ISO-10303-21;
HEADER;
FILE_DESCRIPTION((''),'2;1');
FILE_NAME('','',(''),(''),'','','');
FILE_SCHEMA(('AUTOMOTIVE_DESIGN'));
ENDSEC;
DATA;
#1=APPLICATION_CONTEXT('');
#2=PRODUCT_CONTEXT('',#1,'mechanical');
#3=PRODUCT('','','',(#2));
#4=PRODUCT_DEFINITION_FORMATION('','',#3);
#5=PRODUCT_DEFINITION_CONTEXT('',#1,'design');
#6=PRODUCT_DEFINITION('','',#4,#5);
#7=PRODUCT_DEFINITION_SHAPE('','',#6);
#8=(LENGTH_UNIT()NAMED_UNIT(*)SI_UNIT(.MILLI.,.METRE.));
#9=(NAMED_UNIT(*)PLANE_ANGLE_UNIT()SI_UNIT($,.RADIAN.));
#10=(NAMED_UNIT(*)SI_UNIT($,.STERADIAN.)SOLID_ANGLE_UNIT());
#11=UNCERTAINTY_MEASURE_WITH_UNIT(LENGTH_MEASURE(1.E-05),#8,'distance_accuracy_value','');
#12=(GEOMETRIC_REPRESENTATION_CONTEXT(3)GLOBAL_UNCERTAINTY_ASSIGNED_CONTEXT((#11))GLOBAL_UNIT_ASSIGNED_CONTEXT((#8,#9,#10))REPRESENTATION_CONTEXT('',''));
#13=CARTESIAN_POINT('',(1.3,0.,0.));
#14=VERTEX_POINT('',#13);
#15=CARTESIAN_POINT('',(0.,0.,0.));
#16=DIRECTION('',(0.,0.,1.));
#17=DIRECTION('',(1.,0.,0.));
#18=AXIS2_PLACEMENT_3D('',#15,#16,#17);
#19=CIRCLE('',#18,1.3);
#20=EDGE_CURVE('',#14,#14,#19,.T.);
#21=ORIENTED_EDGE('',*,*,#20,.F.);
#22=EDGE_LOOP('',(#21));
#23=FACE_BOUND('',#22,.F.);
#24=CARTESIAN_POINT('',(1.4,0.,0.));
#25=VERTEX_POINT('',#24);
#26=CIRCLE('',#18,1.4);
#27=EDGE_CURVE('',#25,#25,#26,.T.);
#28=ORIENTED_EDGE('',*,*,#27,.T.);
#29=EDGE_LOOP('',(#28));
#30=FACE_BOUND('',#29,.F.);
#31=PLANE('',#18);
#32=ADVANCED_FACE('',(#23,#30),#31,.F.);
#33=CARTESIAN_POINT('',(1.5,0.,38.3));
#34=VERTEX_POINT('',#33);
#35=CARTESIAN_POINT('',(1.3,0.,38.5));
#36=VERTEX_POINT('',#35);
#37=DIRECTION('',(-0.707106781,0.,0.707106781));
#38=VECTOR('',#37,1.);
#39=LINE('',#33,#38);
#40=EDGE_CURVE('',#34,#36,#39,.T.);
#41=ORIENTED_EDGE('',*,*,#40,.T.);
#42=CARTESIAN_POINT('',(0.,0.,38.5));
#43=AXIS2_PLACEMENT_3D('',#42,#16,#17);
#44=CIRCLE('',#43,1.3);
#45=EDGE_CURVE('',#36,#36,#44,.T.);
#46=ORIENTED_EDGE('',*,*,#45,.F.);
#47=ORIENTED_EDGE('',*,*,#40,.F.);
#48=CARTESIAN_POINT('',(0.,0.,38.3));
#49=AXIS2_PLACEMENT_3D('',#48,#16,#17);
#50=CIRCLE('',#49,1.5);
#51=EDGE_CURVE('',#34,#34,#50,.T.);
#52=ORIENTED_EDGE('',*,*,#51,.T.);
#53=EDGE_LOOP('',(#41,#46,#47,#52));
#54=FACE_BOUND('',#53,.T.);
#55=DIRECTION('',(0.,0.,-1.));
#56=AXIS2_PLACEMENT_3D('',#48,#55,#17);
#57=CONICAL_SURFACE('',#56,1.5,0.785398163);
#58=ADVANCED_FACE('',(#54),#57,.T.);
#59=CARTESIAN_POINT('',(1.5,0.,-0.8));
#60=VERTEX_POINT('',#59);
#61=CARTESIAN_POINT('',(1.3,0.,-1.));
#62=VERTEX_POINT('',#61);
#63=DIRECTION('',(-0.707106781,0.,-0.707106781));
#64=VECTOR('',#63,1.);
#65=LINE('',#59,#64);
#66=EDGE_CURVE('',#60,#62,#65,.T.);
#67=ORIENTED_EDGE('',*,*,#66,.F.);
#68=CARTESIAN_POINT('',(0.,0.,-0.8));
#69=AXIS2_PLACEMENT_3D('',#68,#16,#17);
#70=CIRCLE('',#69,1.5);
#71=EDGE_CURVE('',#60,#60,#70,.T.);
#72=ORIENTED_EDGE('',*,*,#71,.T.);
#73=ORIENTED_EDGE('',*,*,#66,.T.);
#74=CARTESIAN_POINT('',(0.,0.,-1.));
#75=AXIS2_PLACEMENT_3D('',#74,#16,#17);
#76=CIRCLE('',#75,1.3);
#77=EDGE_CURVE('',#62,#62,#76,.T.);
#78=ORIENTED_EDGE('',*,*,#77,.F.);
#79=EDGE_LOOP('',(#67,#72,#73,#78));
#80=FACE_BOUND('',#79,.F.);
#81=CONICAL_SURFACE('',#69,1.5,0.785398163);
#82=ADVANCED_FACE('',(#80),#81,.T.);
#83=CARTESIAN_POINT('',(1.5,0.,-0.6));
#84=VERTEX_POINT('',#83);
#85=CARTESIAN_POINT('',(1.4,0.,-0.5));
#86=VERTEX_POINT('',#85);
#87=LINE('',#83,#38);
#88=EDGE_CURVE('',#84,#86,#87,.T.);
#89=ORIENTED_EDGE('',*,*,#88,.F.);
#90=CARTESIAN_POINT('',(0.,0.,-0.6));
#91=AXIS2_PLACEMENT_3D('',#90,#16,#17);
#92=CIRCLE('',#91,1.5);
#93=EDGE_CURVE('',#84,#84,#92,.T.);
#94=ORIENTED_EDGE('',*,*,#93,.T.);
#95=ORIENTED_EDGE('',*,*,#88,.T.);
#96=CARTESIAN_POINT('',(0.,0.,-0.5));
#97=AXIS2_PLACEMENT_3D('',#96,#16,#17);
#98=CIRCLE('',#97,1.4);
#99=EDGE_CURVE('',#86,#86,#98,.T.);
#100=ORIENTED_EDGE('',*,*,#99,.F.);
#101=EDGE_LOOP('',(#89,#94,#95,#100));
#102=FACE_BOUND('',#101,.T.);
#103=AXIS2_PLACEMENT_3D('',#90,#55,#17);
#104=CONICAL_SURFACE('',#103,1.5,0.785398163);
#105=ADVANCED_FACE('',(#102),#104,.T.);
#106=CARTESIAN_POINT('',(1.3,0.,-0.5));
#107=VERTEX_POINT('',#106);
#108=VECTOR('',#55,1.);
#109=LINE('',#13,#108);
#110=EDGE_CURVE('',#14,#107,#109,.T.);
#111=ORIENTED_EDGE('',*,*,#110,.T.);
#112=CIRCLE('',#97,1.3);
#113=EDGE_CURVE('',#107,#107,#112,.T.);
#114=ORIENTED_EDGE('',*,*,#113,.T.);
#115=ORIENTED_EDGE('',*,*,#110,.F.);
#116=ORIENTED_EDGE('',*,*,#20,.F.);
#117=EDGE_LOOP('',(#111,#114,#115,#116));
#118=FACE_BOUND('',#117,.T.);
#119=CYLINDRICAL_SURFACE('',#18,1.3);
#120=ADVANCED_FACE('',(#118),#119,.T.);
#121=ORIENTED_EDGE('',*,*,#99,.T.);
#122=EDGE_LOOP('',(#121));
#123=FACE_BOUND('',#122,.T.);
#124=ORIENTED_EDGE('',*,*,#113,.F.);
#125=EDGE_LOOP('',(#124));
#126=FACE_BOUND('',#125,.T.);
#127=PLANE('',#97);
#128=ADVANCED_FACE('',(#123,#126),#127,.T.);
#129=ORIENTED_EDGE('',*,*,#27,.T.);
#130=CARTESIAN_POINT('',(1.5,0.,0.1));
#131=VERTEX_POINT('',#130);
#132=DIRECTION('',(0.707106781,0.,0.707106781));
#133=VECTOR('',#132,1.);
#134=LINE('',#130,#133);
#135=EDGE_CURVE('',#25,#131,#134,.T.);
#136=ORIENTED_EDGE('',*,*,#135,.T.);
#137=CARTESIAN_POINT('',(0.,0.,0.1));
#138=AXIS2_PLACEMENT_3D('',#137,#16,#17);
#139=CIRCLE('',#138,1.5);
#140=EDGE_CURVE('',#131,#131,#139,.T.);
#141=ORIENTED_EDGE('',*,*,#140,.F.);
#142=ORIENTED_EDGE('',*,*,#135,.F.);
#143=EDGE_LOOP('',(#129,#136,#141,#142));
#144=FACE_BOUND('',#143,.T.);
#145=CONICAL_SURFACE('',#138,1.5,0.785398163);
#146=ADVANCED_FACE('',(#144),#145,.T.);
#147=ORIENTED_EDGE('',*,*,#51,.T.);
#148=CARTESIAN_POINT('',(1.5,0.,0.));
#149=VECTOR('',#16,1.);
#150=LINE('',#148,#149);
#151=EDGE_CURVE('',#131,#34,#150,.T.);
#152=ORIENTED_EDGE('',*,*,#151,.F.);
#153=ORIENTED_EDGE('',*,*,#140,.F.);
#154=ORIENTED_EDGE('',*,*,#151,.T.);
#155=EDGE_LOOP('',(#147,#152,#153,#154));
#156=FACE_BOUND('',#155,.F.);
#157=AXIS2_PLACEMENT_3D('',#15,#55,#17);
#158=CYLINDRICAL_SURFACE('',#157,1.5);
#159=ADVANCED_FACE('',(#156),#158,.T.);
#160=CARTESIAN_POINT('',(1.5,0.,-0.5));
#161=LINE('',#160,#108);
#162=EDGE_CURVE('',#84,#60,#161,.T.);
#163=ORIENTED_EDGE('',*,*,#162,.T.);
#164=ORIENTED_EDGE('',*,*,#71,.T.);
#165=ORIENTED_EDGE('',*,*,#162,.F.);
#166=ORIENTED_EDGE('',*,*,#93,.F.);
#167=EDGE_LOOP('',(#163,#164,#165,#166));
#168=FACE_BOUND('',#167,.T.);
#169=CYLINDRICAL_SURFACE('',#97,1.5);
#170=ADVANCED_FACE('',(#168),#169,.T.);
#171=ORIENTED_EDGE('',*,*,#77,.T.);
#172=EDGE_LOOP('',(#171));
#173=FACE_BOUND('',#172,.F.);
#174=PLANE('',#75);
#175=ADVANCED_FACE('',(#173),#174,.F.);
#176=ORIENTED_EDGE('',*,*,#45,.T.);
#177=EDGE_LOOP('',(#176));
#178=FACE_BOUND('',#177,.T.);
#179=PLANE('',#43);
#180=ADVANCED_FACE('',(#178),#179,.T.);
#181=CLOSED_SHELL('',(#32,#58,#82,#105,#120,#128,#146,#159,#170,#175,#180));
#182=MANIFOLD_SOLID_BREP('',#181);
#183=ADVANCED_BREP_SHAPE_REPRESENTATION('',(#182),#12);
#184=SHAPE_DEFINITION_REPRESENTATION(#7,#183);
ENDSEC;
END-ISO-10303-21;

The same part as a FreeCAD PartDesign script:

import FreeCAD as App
import Part
import Sketcher
from FreeCAD import Vector


def edges_at(feature, points):
    """Names of the edges that pass closest to the given points."""
    edges = feature.Shape.Edges
    near = lambda p: min(range(len(edges)), key=lambda i: edges[i].distToShape(Part.Vertex(*p))[0])
    return sorted({f"Edge{near(p) + 1}" for p in points})

doc = App.newDocument("Part")
body = doc.addObject("PartDesign::Body", "Body")

sketch1 = body.newObject("Sketcher::SketchObject", "Sketch")
sketch1.AttachmentSupport = (doc.getObject("XY_Plane"), [""])
sketch1.MapMode = "FlatFace"
sketch1.addGeometry(Part.Circle(Vector(0, 0, 0), Vector(0, 0, 1), 1.5), False)
sketch1.addConstraint([
    Sketcher.Constraint("Coincident", 0, 3, -1, 1),
    Sketcher.Constraint("Diameter", 0, 3.0),
])
pad1 = body.newObject("PartDesign::Pad", "Pad")
pad1.Profile = sketch1
pad1.Length = 38.5

sketch2 = body.newObject("Sketcher::SketchObject", "Sketch001")
sketch2.AttachmentSupport = (doc.getObject("XY_Plane"), [""])
sketch2.MapMode = "FlatFace"
sketch2.addGeometry(Part.Circle(Vector(0, 0, 0), Vector(0, 0, 1), 1.3), False)
sketch2.addConstraint([
    Sketcher.Constraint("Coincident", 0, 3, -1, 1),
    Sketcher.Constraint("Diameter", 0, 2.6),
])
pad2 = body.newObject("PartDesign::Pad", "Pad001")
pad2.Profile = sketch2
pad2.Length = 1
pad2.Reversed = True

sketch3 = body.newObject("Sketcher::SketchObject", "Sketch002")
sketch3.AttachmentSupport = (doc.getObject("XY_Plane"), [""])
sketch3.MapMode = "FlatFace"
sketch3.AttachmentOffset = App.Placement(Vector(0, 0, -0.5), App.Rotation())
sketch3.addGeometry([
    Part.Circle(Vector(0, 0, 0), Vector(0, 0, 1), 1.5),
    Part.Circle(Vector(0, 0, 0), Vector(0, 0, 1), 1.3),
], False)
sketch3.addConstraint([
    Sketcher.Constraint("Coincident", 0, 3, -1, 1),
    Sketcher.Constraint("Coincident", 1, 3, -1, 1),
    Sketcher.Constraint("Diameter", 0, 3.0),
    Sketcher.Constraint("Diameter", 1, 2.6),
])
pad3 = body.newObject("PartDesign::Pad", "Pad002")
pad3.Profile = sketch3
pad3.Length = 0.5
pad3.Reversed = True
doc.recompute()

chamfer = body.newObject("PartDesign::Chamfer", "Chamfer")
chamfer.Base = (pad3, edges_at(pad3, [(-1.5, 0, -1), (-1.5, 0, 38.5)]))
chamfer.Size = 0.2
doc.recompute()

chamfer2 = body.newObject("PartDesign::Chamfer", "Chamfer001")
chamfer2.Base = (chamfer, edges_at(chamfer, [(-1.5, 0, -0.5), (-1.5, 0, 0)]))
chamfer2.Size = 0.1

doc.recompute()
